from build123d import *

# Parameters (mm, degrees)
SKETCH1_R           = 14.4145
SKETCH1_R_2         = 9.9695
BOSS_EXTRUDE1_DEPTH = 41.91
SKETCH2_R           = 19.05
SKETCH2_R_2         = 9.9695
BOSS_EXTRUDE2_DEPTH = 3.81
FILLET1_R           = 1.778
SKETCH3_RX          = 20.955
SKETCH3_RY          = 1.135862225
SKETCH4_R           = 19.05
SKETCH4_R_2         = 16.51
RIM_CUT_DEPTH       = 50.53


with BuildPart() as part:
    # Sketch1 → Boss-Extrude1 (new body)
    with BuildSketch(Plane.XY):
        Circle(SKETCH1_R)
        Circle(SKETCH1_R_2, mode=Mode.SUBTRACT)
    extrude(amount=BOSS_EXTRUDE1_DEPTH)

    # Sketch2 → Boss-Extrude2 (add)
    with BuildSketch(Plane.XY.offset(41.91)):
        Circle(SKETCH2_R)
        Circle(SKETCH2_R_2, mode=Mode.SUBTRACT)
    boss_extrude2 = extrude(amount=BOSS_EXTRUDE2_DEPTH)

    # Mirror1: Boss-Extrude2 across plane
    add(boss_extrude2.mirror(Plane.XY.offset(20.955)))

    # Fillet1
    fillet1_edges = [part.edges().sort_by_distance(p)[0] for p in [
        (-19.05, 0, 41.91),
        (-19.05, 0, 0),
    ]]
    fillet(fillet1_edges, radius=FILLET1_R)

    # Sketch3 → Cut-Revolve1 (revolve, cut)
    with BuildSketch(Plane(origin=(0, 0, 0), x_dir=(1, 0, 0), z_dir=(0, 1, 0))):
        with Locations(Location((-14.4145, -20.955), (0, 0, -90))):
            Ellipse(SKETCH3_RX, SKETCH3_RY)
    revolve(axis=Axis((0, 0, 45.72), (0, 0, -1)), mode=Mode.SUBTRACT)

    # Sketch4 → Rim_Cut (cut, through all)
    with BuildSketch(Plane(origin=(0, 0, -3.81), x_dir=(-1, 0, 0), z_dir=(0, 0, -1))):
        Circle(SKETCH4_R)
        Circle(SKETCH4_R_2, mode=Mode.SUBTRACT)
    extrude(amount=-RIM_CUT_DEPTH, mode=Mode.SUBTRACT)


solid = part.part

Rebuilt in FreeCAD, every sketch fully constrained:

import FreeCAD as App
import Part
import Sketcher

V = App.Vector
Q = App.Units.Quantity


def edges_at(feature, points):
    """Names of the edges that pass closest to the given points."""
    edges = feature.Shape.Edges
    near = lambda p: min(range(len(edges)), key=lambda i: edges[i].distToShape(Part.Vertex(*p))[0])
    return sorted({f"Edge{near(p) + 1}" for p in points})

doc = App.newDocument("Part")
params = doc.addObject("Spreadsheet::Sheet", "Params")
for row, (alias, value) in enumerate([
    ("sketch1_diameter", "1.135 in"),
    ("sketch1_diameter2", "0.785 in"),
    ("pad1_length", "1.65 in"),
    ("sketch2_diameter", "1.5 in"),
    ("sketch2_diameter2", "0.785 in"),
    ("pad2_length", "0.15 in"),
    ("fillet_radius", "0.07 in"),
    ("groove_angle", "360 deg"),
    ("sketch4_diameter", "1.5 in"),
    ("sketch4_diameter2", "1.3 in"),
], start=1):
    params.set(f"A{row}", alias)
    params.set(f"B{row}", "=" + value)
    params.setAlias(f"B{row}", alias)

body = doc.addObject("PartDesign::Body", "Body")

sketch1 = body.newObject("Sketcher::SketchObject", "Sketch")
sketch1.AttachmentSupport = (doc.getObject("XY_Plane"), [""])
sketch1.MapMode = "FlatFace"
sketch1.addGeometry([
    Part.Circle(V(0, 0, 0), V(0, 0, 1), 14),
    Part.Circle(V(0, 0, 0), V(0, 0, 1), 10),
], False)
sketch1.addConstraint([
    Sketcher.Constraint("Coincident", 0, 3, -1, 1),
    Sketcher.Constraint("Coincident", 1, 3, -1, 1),
    Sketcher.Constraint("Diameter", 0, Q("1.135 in")),
    Sketcher.Constraint("Diameter", 1, Q("0.785 in")),
])
sketch1.setExpression("Constraints[2]", "Params.sketch1_diameter")
sketch1.setExpression("Constraints[3]", "Params.sketch1_diameter2")
pad1 = body.newObject("PartDesign::Pad", "Pad")
pad1.Profile = sketch1
pad1.setExpression("Length", "Params.pad1_length")

sketch2 = body.newObject("Sketcher::SketchObject", "Sketch001")
sketch2.AttachmentSupport = (doc.getObject("XY_Plane"), [""])
sketch2.MapMode = "FlatFace"
sketch2.AttachmentOffset = App.Placement(V(0, 0, 1.65 * 25.4), App.Rotation())
sketch2.addGeometry([
    Part.Circle(V(0, 0, 0), V(0, 0, 1), 19),
    Part.Circle(V(0, 0, 0), V(0, 0, 1), 10),
], False)
sketch2.addConstraint([
    Sketcher.Constraint("Coincident", 0, 3, -1, 1),
    Sketcher.Constraint("Coincident", 1, 3, -1, 1),
    Sketcher.Constraint("Diameter", 0, Q("1.5 in")),
    Sketcher.Constraint("Diameter", 1, Q("0.785 in")),
])
sketch2.setExpression("Constraints[2]", "Params.sketch2_diameter")
sketch2.setExpression("Constraints[3]", "Params.sketch2_diameter2")
pad2 = body.newObject("PartDesign::Pad", "Pad001")
pad2.Profile = sketch2
pad2.setExpression("Length", "Params.pad2_length")
doc.recompute()

datumplane = body.newObject("PartDesign::Plane", "DatumPlane")
datumplane.AttachmentSupport = (doc.getObject("XY_Plane"), [""])
datumplane.MapMode = "FlatFace"
datumplane.AttachmentOffset = App.Placement(V(0, 0, 0.825 * 25.4), App.Rotation())
mirrored = body.newObject("PartDesign::Mirrored", "Mirrored")
mirrored.Originals = [pad2]
mirrored.MirrorPlane = (datumplane, [""])
body.Tip = mirrored
doc.recompute()

fillet = body.newObject("PartDesign::Fillet", "Fillet")
fillet.Base = (mirrored, edges_at(mirrored, [(-19.05, 0, 41.91), (-19.05, 0, 0)]))
fillet.setExpression("Radius", "Params.fillet_radius")

sketch3 = body.newObject("Sketcher::SketchObject", "Sketch002")
sketch3.AttachmentSupport = (doc.getObject("XZ_Plane"), [""])
sketch3.MapMode = "FlatFace"
sketch3.addGeometry(Part.Ellipse(V(-14.4145, 41.91, 0), V(-15.550362, 20.955, 0), V(-14.4145, 20.955, 0)), False)
sketch3.addConstraint(Sketcher.Constraint("Block", 0))
groove = body.newObject("PartDesign::Groove", "Groove")
groove.Profile = sketch3
groove.ReferenceAxis = (sketch3, ["V_Axis"])
groove.setExpression("Angle", "Params.groove_angle")

sketch4 = body.newObject("Sketcher::SketchObject", "Sketch003")
sketch4.AttachmentSupport = (doc.getObject("XY_Plane"), [""])
sketch4.MapMode = "FlatFace"
sketch4.AttachmentOffset = App.Placement(V(0, 0, -0.15 * 25.4), App.Rotation())
sketch4.addGeometry([
    Part.Circle(V(0, 0, 0), V(0, 0, 1), 19),
    Part.Circle(V(0, 0, 0), V(0, 0, 1), 17),
], False)
sketch4.addConstraint([
    Sketcher.Constraint("Coincident", 0, 3, -1, 1),
    Sketcher.Constraint("Coincident", 1, 3, -1, 1),
    Sketcher.Constraint("Diameter", 0, Q("1.5 in")),
    Sketcher.Constraint("Diameter", 1, Q("1.3 in")),
])
sketch4.setExpression("Constraints[2]", "Params.sketch4_diameter")
sketch4.setExpression("Constraints[3]", "Params.sketch4_diameter2")
pocket1 = body.newObject("PartDesign::Pocket", "Pocket")
pocket1.Profile = sketch4
pocket1.Type = "ThroughAll"
pocket1.Reversed = True

doc.recompute()
